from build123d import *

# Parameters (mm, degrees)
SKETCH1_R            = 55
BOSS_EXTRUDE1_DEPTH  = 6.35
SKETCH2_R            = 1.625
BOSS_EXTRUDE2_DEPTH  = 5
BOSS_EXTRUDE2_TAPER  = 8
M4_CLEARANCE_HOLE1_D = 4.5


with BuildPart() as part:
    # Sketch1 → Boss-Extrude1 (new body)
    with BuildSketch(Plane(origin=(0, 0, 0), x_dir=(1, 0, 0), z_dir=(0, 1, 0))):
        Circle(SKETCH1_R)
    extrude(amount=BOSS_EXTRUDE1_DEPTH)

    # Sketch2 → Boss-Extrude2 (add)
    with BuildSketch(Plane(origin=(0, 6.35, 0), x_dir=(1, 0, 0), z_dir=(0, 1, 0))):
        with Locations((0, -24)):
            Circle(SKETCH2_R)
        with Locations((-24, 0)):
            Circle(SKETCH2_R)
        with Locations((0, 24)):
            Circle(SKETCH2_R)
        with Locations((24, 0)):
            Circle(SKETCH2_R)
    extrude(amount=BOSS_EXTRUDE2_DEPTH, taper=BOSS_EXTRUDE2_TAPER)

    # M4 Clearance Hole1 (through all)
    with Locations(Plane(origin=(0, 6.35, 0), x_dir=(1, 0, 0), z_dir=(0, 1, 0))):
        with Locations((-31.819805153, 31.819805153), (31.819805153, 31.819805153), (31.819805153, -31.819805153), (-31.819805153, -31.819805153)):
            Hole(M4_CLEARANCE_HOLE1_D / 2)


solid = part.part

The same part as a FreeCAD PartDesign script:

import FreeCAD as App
import Part
import Sketcher

V = App.Vector

doc = App.newDocument("Part")
params = doc.addObject("Spreadsheet::Sheet", "Params")
for row, (alias, value) in enumerate([
    ("sketch1_diameter", "110 mm"),
    ("pad1_length", "6.35 mm"),
    ("sketch2_diameter", "3.25 mm"),
    ("pad2_length", "5 mm"),
    ("pad2_taper", "-8 deg"),
    ("sketch3_diameter", "4.5 mm"),
    ("hole_diameter", "4.5 mm"),
], start=1):
    params.set(f"A{row}", alias)
    params.set(f"B{row}", "=" + value)
    params.setAlias(f"B{row}", alias)

body = doc.addObject("PartDesign::Body", "Body")

sketch1 = doc.addObject("Sketcher::SketchObject", "Sketch")
body.addObject(sketch1)
sketch1.AttachmentSupport = (doc.XZ_Plane, [""])
sketch1.MapMode = "FlatFace"
sketch1.addGeometry(Part.Circle(V(0, 0, 0), V(0, 0, 1), 55), False)
sketch1.addConstraint([
    Sketcher.Constraint("Coincident", 0, 3, -1, 1),
    Sketcher.Constraint("Diameter", 0, 110.0),
])
sketch1.setExpression("Constraints[1]", "Params.sketch1_diameter")
pad1 = doc.addObject("PartDesign::Pad", "Pad")
body.addObject(pad1)
pad1.Profile = sketch1
pad1.setExpression("Length", "Params.pad1_length")
pad1.Reversed = True

sketch2 = doc.addObject("Sketcher::SketchObject", "Sketch001")
body.addObject(sketch2)
sketch2.AttachmentSupport = (doc.XZ_Plane, [""])
sketch2.MapMode = "FlatFace"
sketch2.AttachmentOffset = App.Placement(V(0, 0, -6.35), App.Rotation())
sketch2.addGeometry([
    Part.Circle(V(0, 24, 0), V(0, 0, 1), 1.625),
    Part.Circle(V(-24, 0, 0), V(0, 0, 1), 1.625),
    Part.Circle(V(0, -24, 0), V(0, 0, 1), 1.625),
    Part.Circle(V(24, 0, 0), V(0, 0, 1), 1.625),
], False)
sketch2.addConstraint([
    Sketcher.Constraint("Equal", 0, 1),
    Sketcher.Constraint("Equal", 1, 2),
    Sketcher.Constraint("Equal", 2, 3),
    Sketcher.Constraint("Symmetric", 0, 3, 2, 3, -1, 1),
    Sketcher.Constraint("Symmetric", 1, 3, 3, 3, -1, 1),
    Sketcher.Constraint("PointOnObject", 0, 3, -2),
    Sketcher.Constraint("PointOnObject", 1, 3, -1),
    Sketcher.Constraint("Diameter", 0, 3.25),
    Sketcher.Constraint("DistanceY", -1, 1, 0, 3, 24.0),
    Sketcher.Constraint("DistanceX", 1, 3, -1, 1, 24.0),
])
sketch2.setExpression("Constraints[7]", "Params.sketch2_diameter")
pad2 = doc.addObject("PartDesign::Pad", "Pad001")
body.addObject(pad2)
pad2.Profile = sketch2
pad2.setExpression("Length", "Params.pad2_length")
pad2.Reversed = True
pad2.setExpression("TaperAngle", "Params.pad2_taper")

sketch3 = doc.addObject("Sketcher::SketchObject", "Sketch002")
body.addObject(sketch3)
sketch3.AttachmentSupport = (doc.XZ_Plane, [""])
sketch3.MapMode = "FlatFace"
sketch3.AttachmentOffset = App.Placement(V(0, 0, -6.35), App.Rotation())
sketch3.addGeometry([
    Part.Circle(V(-31.819805, -31.819805, 0), V(0, 0, 1), 2.25),
    Part.Circle(V(31.819805, -31.819805, 0), V(0, 0, 1), 2.25),
    Part.Circle(V(31.819805, 31.819805, 0), V(0, 0, 1), 2.25),
    Part.Circle(V(-31.819805, 31.819805, 0), V(0, 0, 1), 2.25),
], False)
sketch3.addConstraint([
    Sketcher.Constraint("Equal", 0, 1),
    Sketcher.Constraint("Equal", 1, 2),
    Sketcher.Constraint("Equal", 2, 3),
    Sketcher.Constraint("Symmetric", 0, 3, 2, 3, -1, 1),
    Sketcher.Constraint("Symmetric", 1, 3, 3, 3, -1, 1),
    Sketcher.Constraint("Symmetric", 0, 3, 1, 3, -2),
    Sketcher.Constraint("Diameter", 0, 4.5),
    Sketcher.Constraint("DistanceX", 0, 3, 1, 3, 63.63961),
    Sketcher.Constraint("DistanceY", 1, 3, 2, 3, 63.63961),
])
sketch3.setExpression("Constraints[6]", "Params.sketch3_diameter")
doc.recompute()
hole = doc.addObject("PartDesign::Hole", "Hole")
body.addObject(hole)
hole.Profile = sketch3
hole.ThreadType = "None"
hole.setExpression("Diameter", "Params.hole_diameter")
hole.DepthType = "ThroughAll"
hole.Reversed = True

doc.recompute()
